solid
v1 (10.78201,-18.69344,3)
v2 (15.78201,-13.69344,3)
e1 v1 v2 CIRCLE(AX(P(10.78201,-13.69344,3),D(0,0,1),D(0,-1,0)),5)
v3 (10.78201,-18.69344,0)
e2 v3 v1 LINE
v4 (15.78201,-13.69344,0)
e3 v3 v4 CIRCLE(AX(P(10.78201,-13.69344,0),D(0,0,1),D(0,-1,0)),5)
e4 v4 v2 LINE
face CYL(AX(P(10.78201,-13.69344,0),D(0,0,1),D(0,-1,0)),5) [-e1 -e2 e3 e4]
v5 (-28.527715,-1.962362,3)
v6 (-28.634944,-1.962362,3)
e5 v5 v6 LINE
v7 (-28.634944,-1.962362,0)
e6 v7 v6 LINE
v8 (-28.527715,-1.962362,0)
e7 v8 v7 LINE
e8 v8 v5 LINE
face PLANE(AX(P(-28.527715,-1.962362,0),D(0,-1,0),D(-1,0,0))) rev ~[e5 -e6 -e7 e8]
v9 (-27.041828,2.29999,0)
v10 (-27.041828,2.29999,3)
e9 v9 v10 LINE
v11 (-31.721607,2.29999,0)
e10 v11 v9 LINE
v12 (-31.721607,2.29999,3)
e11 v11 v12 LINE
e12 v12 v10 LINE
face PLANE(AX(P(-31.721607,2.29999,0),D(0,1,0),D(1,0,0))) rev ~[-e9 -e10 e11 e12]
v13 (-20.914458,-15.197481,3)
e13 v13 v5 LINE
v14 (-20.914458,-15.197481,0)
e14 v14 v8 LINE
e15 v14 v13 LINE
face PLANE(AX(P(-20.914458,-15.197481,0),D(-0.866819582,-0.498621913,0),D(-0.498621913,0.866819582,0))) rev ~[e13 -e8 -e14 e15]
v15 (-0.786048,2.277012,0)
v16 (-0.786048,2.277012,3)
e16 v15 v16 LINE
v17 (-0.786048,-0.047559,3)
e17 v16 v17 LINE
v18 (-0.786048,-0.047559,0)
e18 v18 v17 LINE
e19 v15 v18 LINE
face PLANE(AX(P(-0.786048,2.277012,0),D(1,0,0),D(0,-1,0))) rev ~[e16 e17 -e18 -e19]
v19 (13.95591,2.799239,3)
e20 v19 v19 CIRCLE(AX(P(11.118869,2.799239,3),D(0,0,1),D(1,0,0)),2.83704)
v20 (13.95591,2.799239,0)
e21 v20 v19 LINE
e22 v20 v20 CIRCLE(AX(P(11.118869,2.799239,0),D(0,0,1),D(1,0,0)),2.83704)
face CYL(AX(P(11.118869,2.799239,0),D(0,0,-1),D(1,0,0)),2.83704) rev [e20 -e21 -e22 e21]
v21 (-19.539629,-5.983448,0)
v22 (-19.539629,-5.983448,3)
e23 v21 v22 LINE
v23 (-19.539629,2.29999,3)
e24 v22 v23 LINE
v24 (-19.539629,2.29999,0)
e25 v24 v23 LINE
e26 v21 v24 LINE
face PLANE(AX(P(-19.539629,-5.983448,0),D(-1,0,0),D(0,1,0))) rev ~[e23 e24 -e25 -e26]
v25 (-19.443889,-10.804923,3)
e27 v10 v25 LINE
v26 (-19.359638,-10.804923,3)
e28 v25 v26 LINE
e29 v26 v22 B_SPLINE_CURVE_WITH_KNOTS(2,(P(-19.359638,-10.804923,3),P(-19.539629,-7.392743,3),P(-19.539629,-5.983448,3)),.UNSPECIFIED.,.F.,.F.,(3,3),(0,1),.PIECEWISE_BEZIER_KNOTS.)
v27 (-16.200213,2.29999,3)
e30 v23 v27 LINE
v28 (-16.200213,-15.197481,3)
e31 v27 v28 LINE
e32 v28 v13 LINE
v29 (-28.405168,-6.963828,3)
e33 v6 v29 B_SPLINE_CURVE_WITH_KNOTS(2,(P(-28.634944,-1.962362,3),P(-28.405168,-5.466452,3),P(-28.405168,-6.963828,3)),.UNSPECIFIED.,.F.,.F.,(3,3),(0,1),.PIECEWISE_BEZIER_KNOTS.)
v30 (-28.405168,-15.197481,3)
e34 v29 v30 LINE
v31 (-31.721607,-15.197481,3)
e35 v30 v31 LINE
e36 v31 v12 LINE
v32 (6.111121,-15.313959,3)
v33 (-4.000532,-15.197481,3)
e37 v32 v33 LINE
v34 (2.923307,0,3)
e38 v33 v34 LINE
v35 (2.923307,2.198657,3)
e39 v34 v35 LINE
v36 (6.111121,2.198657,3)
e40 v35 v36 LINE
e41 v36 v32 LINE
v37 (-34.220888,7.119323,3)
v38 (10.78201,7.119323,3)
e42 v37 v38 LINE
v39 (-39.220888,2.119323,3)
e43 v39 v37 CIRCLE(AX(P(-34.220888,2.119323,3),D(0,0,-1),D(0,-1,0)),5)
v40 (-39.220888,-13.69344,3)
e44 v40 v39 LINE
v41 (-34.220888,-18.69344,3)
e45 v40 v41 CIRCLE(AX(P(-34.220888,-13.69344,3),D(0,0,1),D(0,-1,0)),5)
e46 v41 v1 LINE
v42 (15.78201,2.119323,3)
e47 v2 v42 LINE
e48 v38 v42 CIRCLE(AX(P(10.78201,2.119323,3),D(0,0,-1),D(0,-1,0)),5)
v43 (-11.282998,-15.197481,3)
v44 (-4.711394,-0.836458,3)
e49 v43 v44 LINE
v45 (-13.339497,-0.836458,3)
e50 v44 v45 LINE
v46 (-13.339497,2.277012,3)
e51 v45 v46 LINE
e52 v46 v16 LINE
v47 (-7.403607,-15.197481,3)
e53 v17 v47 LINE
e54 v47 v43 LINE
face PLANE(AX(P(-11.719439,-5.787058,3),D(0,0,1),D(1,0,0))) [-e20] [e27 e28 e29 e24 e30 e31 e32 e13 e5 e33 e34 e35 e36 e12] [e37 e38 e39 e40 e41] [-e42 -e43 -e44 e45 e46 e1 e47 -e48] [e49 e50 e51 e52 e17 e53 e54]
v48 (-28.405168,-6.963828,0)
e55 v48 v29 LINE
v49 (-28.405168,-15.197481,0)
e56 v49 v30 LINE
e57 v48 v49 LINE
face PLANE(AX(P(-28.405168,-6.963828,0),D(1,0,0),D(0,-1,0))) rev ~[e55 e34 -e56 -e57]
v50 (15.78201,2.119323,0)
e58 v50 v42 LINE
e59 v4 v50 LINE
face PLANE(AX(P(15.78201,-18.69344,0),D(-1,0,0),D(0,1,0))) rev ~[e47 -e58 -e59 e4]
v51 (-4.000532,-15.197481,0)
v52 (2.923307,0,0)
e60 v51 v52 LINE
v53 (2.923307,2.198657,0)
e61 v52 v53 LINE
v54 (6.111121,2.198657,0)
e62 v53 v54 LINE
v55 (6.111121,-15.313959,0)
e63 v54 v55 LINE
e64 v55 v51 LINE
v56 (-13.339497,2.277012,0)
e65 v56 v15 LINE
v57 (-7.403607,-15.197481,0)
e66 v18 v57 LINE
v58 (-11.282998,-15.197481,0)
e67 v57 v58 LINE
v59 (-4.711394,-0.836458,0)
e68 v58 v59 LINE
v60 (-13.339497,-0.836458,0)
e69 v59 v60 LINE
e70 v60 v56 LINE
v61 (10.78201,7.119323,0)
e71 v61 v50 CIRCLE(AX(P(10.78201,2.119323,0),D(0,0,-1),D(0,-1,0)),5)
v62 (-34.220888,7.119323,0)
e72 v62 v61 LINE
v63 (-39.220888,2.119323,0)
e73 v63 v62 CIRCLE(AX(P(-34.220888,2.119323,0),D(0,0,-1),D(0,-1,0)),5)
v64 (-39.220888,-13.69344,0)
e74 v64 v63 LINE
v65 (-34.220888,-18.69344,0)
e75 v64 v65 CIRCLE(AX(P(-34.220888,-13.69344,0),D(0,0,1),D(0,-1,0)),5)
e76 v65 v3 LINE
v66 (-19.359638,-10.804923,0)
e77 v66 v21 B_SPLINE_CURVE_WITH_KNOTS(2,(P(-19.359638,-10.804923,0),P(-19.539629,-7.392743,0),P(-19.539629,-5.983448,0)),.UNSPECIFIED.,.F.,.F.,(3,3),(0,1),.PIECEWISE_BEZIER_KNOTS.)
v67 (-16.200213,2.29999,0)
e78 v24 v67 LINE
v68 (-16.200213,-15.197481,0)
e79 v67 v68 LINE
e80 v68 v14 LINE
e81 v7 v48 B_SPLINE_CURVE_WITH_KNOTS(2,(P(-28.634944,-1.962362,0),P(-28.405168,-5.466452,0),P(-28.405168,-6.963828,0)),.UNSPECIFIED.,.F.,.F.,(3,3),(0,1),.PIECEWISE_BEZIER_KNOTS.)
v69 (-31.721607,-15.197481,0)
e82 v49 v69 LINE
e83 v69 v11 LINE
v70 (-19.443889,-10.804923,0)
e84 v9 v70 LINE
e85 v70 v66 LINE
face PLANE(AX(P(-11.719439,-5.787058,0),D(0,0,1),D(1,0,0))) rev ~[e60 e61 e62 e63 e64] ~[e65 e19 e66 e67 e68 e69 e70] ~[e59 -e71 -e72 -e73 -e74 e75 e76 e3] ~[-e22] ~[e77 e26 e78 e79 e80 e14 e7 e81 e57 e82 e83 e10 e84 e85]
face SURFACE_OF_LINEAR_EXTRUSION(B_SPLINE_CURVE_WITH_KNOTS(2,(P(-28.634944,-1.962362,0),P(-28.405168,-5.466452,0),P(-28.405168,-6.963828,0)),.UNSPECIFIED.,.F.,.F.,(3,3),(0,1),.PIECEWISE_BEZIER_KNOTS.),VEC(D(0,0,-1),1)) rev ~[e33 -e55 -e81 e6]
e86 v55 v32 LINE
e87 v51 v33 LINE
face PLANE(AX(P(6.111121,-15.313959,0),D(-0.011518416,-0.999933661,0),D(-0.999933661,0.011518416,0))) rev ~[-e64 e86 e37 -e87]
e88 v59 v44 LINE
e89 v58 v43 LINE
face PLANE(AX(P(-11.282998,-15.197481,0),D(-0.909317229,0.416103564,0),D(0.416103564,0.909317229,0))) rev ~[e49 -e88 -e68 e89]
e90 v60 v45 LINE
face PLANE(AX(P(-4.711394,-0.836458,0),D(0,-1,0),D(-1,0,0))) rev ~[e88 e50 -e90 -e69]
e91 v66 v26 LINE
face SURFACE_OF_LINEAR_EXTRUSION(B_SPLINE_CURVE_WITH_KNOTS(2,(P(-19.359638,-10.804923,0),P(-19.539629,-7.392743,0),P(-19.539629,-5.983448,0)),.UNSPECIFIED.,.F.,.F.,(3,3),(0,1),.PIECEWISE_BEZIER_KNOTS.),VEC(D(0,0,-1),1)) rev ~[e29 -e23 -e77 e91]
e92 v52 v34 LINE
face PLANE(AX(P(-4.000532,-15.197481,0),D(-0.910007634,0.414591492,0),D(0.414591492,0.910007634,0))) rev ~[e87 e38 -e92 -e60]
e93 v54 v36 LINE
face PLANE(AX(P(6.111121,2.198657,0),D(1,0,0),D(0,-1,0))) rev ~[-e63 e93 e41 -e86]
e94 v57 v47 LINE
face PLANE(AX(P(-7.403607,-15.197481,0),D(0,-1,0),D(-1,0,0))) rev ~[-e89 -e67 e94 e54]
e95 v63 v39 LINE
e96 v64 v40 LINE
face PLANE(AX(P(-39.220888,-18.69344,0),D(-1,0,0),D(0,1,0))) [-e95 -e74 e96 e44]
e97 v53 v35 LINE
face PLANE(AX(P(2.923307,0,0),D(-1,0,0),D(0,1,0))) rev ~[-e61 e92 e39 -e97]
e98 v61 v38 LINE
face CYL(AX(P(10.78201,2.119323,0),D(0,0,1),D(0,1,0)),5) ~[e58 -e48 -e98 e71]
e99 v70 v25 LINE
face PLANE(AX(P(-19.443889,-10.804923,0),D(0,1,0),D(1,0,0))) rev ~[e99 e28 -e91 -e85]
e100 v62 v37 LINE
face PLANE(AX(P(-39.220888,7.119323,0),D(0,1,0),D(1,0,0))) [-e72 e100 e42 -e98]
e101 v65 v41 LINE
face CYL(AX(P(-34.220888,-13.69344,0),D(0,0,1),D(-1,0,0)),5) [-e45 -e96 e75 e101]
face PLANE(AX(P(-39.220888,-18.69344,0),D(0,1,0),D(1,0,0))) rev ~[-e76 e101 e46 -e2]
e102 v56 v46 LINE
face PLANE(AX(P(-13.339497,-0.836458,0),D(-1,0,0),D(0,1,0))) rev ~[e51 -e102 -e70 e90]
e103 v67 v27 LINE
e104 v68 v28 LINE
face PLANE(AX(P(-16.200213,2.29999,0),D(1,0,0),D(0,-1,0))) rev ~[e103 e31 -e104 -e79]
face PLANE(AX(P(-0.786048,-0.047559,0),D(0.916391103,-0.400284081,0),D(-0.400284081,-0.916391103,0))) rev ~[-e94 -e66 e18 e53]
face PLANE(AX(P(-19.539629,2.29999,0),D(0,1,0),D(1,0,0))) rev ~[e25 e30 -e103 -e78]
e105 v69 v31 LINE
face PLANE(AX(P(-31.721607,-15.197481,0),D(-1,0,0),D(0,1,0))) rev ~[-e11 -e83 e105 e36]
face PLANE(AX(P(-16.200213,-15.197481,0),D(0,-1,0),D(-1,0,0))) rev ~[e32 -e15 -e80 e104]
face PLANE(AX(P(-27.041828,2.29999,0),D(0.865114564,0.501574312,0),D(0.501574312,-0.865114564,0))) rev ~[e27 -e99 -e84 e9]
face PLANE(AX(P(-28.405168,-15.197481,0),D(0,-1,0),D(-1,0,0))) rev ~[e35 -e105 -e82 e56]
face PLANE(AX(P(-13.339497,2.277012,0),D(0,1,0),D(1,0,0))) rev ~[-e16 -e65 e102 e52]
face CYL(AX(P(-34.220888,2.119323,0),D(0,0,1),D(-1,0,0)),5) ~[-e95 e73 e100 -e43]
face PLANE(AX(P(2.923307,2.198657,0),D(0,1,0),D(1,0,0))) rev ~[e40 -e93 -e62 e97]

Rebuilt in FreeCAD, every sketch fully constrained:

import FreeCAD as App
import Part
import Sketcher


def edges_at(feature, points):
    """Names of the edges that pass closest to the given points."""
    edges = feature.Shape.Edges
    near = lambda p: min(range(len(edges)), key=lambda i: edges[i].distToShape(Part.Vertex(*p))[0])
    return sorted({f"Edge{near(p) + 1}" for p in points})

doc = App.newDocument("Part")
body = doc.addObject("PartDesign::Body", "Body")

sketch1 = body.newObject("Sketcher::SketchObject", "Sketch")
sketch1.AttachmentSupport = (doc.getObject("XY_Plane"), [""])
sketch1.MapMode = "FlatFace"
sketch1.addGeometry(Part.LineSegment(App.Vector(-39.220888, 7.119323, 0), App.Vector(-39.220888, -18.69344, 0)), False)
sketch1.addGeometry(Part.LineSegment(App.Vector(-39.220888, -18.69344, 0), App.Vector(15.78201, -18.69344, 0)), False)
sketch1.addGeometry(Part.LineSegment(App.Vector(15.78201, -18.69344, 0), App.Vector(15.78201, 7.119323, 0)), False)
sketch1.addGeometry(Part.LineSegment(App.Vector(15.78201, 7.119323, 0), App.Vector(-39.220888, 7.119323, 0)), False)
sketch1.addGeometry(Part.LineSegment(App.Vector(-19.539629, 2.29999, 0), App.Vector(-16.200213, 2.29999, 0)), False)
sketch1.addGeometry(Part.LineSegment(App.Vector(-16.200213, 2.29999, 0), App.Vector(-16.200213, -15.197481, 0)), False)
sketch1.addGeometry(Part.LineSegment(App.Vector(-16.200213, -15.197481, 0), App.Vector(-20.914458, -15.197481, 0)), False)
sketch1.addGeometry(Part.LineSegment(App.Vector(-20.914458, -15.197481, 0), App.Vector(-28.527715, -1.962362, 0)), False)
sketch1.addGeometry(Part.LineSegment(App.Vector(-28.527715, -1.962362, 0), App.Vector(-28.634944, -1.962362, 0)), False)
sketch1.addGeometry(Part.BSplineCurve([App.Vector(-28.634944, -1.962362, 0), App.Vector(-28.405168, -5.466452, 0), App.Vector(-28.405168, -6.963828, 0)], [3, 3], [0, 1], False, 2, [1, 1, 1], False), False)
sketch1.addGeometry(Part.LineSegment(App.Vector(-28.405168, -6.963828, 0), App.Vector(-28.405168, -15.197481, 0)), False)
sketch1.addGeometry(Part.LineSegment(App.Vector(-28.405168, -15.197481, 0), App.Vector(-31.721607, -15.197481, 0)), False)
sketch1.addGeometry(Part.LineSegment(App.Vector(-31.721607, -15.197481, 0), App.Vector(-31.721607, 2.29999, 0)), False)
sketch1.addGeometry(Part.LineSegment(App.Vector(-31.721607, 2.29999, 0), App.Vector(-27.041828, 2.29999, 0)), False)
sketch1.addGeometry(Part.LineSegment(App.Vector(-27.041828, 2.29999, 0), App.Vector(-19.443889, -10.804923, 0)), False)
sketch1.addGeometry(Part.LineSegment(App.Vector(-19.443889, -10.804923, 0), App.Vector(-19.359638, -10.804923, 0)), False)
sketch1.addGeometry(Part.BSplineCurve([App.Vector(-19.359638, -10.804923, 0), App.Vector(-19.539629, -7.392743, 0), App.Vector(-19.539629, -5.983448, 0)], [3, 3], [0, 1], False, 2, [1, 1, 1], False), False)
sketch1.addGeometry(Part.LineSegment(App.Vector(-19.539629, -5.983448, 0), App.Vector(-19.539629, 2.29999, 0)), False)
sketch1.addGeometry(Part.LineSegment(App.Vector(-0.786048, -0.047559, 0), App.Vector(-7.403607, -15.197481, 0)), False)
sketch1.addGeometry(Part.LineSegment(App.Vector(-7.403607, -15.197481, 0), App.Vector(-11.282998, -15.197481, 0)), False)
sketch1.addGeometry(Part.LineSegment(App.Vector(-11.282998, -15.197481, 0), App.Vector(-4.711394, -0.836458, 0)), False)
sketch1.addGeometry(Part.LineSegment(App.Vector(-4.711394, -0.836458, 0), App.Vector(-13.339497, -0.836458, 0)), False)
sketch1.addGeometry(Part.LineSegment(App.Vector(-13.339497, -0.836458, 0), App.Vector(-13.339497, 2.277012, 0)), False)
sketch1.addGeometry(Part.LineSegment(App.Vector(-13.339497, 2.277012, 0), App.Vector(-0.786048, 2.277012, 0)), False)
sketch1.addGeometry(Part.LineSegment(App.Vector(-0.786048, 2.277012, 0), App.Vector(-0.786048, -0.047559, 0)), False)
sketch1.addGeometry(Part.LineSegment(App.Vector(6.111121, 2.198657, 0), App.Vector(6.111121, -15.313959, 0)), False)
sketch1.addGeometry(Part.LineSegment(App.Vector(6.111121, -15.313959, 0), App.Vector(-4.000532, -15.197481, 0)), False)
sketch1.addGeometry(Part.LineSegment(App.Vector(-4.000532, -15.197481, 0), App.Vector(2.923307, 0, 0)), False)
sketch1.addGeometry(Part.LineSegment(App.Vector(2.923307, 0, 0), App.Vector(2.923307, 2.198657, 0)), False)
sketch1.addGeometry(Part.LineSegment(App.Vector(2.923307, 2.198657, 0), App.Vector(6.111121, 2.198657, 0)), False)
sketch1.addGeometry(Part.Circle(App.Vector(11.118869, 2.799239, 0), App.Vector(0, 0, 1), 2.83704), False)
sketch1.addConstraint(Sketcher.Constraint("Block", 9))
sketch1.addConstraint(Sketcher.Constraint("Block", 16))
sketch1.addConstraint(Sketcher.Constraint("Coincident", 0, 2, 1, 1))
sketch1.addConstraint(Sketcher.Constraint("Coincident", 1, 2, 2, 1))
sketch1.addConstraint(Sketcher.Constraint("Coincident", 2, 2, 3, 1))
sketch1.addConstraint(Sketcher.Constraint("Coincident", 3, 2, 0, 1))
sketch1.addConstraint(Sketcher.Constraint("Coincident", 4, 2, 5, 1))
sketch1.addConstraint(Sketcher.Constraint("Coincident", 5, 2, 6, 1))
sketch1.addConstraint(Sketcher.Constraint("Coincident", 6, 2, 7, 1))
sketch1.addConstraint(Sketcher.Constraint("Coincident", 7, 2, 8, 1))
sketch1.addConstraint(Sketcher.Constraint("Coincident", 8, 2, 9, 1))
sketch1.addConstraint(Sketcher.Constraint("Coincident", 9, 2, 10, 1))
sketch1.addConstraint(Sketcher.Constraint("Coincident", 10, 2, 11, 1))
sketch1.addConstraint(Sketcher.Constraint("Coincident", 11, 2, 12, 1))
sketch1.addConstraint(Sketcher.Constraint("Coincident", 12, 2, 13, 1))
sketch1.addConstraint(Sketcher.Constraint("Coincident", 13, 2, 14, 1))
sketch1.addConstraint(Sketcher.Constraint("Coincident", 14, 2, 15, 1))
sketch1.addConstraint(Sketcher.Constraint("Coincident", 15, 2, 16, 1))
sketch1.addConstraint(Sketcher.Constraint("Coincident", 16, 2, 17, 1))
sketch1.addConstraint(Sketcher.Constraint("Coincident", 17, 2, 4, 1))
sketch1.addConstraint(Sketcher.Constraint("Coincident", 18, 2, 19, 1))
sketch1.addConstraint(Sketcher.Constraint("Coincident", 19, 2, 20, 1))
sketch1.addConstraint(Sketcher.Constraint("Coincident", 20, 2, 21, 1))
sketch1.addConstraint(Sketcher.Constraint("Coincident", 21, 2, 22, 1))
sketch1.addConstraint(Sketcher.Constraint("Coincident", 22, 2, 23, 1))
sketch1.addConstraint(Sketcher.Constraint("Coincident", 23, 2, 24, 1))
sketch1.addConstraint(Sketcher.Constraint("Coincident", 24, 2, 18, 1))
sketch1.addConstraint(Sketcher.Constraint("Coincident", 25, 2, 26, 1))
sketch1.addConstraint(Sketcher.Constraint("Coincident", 26, 2, 27, 1))
sketch1.addConstraint(Sketcher.Constraint("Coincident", 27, 2, 28, 1))
sketch1.addConstraint(Sketcher.Constraint("Coincident", 28, 2, 29, 1))
sketch1.addConstraint(Sketcher.Constraint("Coincident", 29, 2, 25, 1))
sketch1.addConstraint(Sketcher.Constraint("Vertical", 0))
sketch1.addConstraint(Sketcher.Constraint("Horizontal", 1))
sketch1.addConstraint(Sketcher.Constraint("Vertical", 2))
sketch1.addConstraint(Sketcher.Constraint("Horizontal", 3))
sketch1.addConstraint(Sketcher.Constraint("Horizontal", 4))
sketch1.addConstraint(Sketcher.Constraint("Vertical", 5))
sketch1.addConstraint(Sketcher.Constraint("Horizontal", 6))
sketch1.addConstraint(Sketcher.Constraint("Horizontal", 8))
sketch1.addConstraint(Sketcher.Constraint("Vertical", 10))
sketch1.addConstraint(Sketcher.Constraint("Horizontal", 11))
sketch1.addConstraint(Sketcher.Constraint("Vertical", 12))
sketch1.addConstraint(Sketcher.Constraint("Horizontal", 13))
sketch1.addConstraint(Sketcher.Constraint("Horizontal", 15))
sketch1.addConstraint(Sketcher.Constraint("Vertical", 17))
sketch1.addConstraint(Sketcher.Constraint("Horizontal", 19))
sketch1.addConstraint(Sketcher.Constraint("Horizontal", 21))
sketch1.addConstraint(Sketcher.Constraint("Vertical", 22))
sketch1.addConstraint(Sketcher.Constraint("Horizontal", 23))
sketch1.addConstraint(Sketcher.Constraint("Vertical", 24))
sketch1.addConstraint(Sketcher.Constraint("Vertical", 25))
sketch1.addConstraint(Sketcher.Constraint("Vertical", 28))
sketch1.addConstraint(Sketcher.Constraint("Horizontal", 29))
sketch1.addConstraint(Sketcher.Constraint("PointOnObject", 27, 2, -1))
sketch1.addConstraint(Sketcher.Constraint("Horizontal", 6, 2, 10, 2))
sketch1.addConstraint(Sketcher.Constraint("Horizontal", 4, 2, 12, 2))
sketch1.addConstraint(Sketcher.Constraint("Horizontal", 11, 2, 18, 2))
sketch1.addConstraint(Sketcher.Constraint("Horizontal", 19, 2, 26, 2))
sketch1.addConstraint(Sketcher.Constraint("Diameter", 30, 5.674081))
sketch1.addConstraint(Sketcher.Constraint("DistanceX", 19, 2, -1, 1, 11.282998))
sketch1.addConstraint(Sketcher.Constraint("DistanceX", 8, 2, 8, 1, 0.107229))
sketch1.addConstraint(Sketcher.Constraint("DistanceX", 11, 2, 11, 1, 3.316439))
sketch1.addConstraint(Sketcher.Constraint("DistanceX", 13, 1, 13, 2, 4.679779))
sketch1.addConstraint(Sketcher.Constraint("DistanceX", 15, 1, 15, 2, 0.084251))
sketch1.addConstraint(Sketcher.Constraint("DistanceX", 19, 2, 19, 1, 3.879391))
sketch1.addConstraint(Sketcher.Constraint("DistanceX", 23, 1, 23, 2, 12.553449))
sketch1.addConstraint(Sketcher.Constraint("DistanceY", 5, 2, 5, 1, 17.497471))
sketch1.addConstraint(Sketcher.Constraint("DistanceY", 17, 1, 17, 2, 8.283438))
sketch1.addConstraint(Sketcher.Constraint("DistanceY", 22, 1, 22, 2, 3.11347))
sketch1.addConstraint(Sketcher.Constraint("DistanceY", 24, 2, 24, 1, 2.324571))
sketch1.addConstraint(Sketcher.Constraint("DistanceY", 25, 2, 24, 2, 15.2664))
sketch1.addConstraint(Sketcher.Constraint("DistanceX", 20, 2, 27, 2, 7.634701))
sketch1.addConstraint(Sketcher.Constraint("Distance", 27, 16.700388))
sketch1.addConstraint(Sketcher.Constraint("DistanceX", 1, 1, 1, 2, 55.002898))
sketch1.addConstraint(Sketcher.Constraint("DistanceX", 4, 1, 4, 2, 3.339417))
sketch1.addConstraint(Sketcher.Constraint("DistanceX", 6, 2, 6, 1, 4.714245))
sketch1.addConstraint(Sketcher.Constraint("DistanceX", 21, 2, 21, 1, 8.628103))
sketch1.addConstraint(Sketcher.Constraint("DistanceX", 29, 1, 29, 2, 3.187814))
sketch1.addConstraint(Sketcher.Constraint("DistanceY", 0, 2, 0, 1, 25.812763))
sketch1.addConstraint(Sketcher.Constraint("DistanceY", 25, 2, 25, 1, 17.512616))
sketch1.addConstraint(Sketcher.Constraint("DistanceY", 28, 1, 28, 2, 2.198657))
sketch1.addConstraint(Sketcher.Constraint("DistanceX", -1, 1, 30, 3, 11.118869))
sketch1.addConstraint(Sketcher.Constraint("DistanceY", -1, 1, 30, 3, 2.799239))
sketch1.addConstraint(Sketcher.Constraint("DistanceX", 0, 2, -1, 1, 39.220888))
sketch1.addConstraint(Sketcher.Constraint("DistanceY", 0, 2, -1, 1, 18.69344))
sketch1.addConstraint(Sketcher.Constraint("DistanceX", -1, 1, 25, 2, 6.111121))
pad1 = body.newObject("PartDesign::Pad", "Pad")
pad1.Profile = sketch1
pad1.Length = 3
doc.recompute()

fillet = body.newObject("PartDesign::Fillet", "Fillet")
fillet.Base = (pad1, edges_at(pad1, [
    (-39.221, 7.119, 1.5),
    (-39.221, -18.693, 1.5),
    (15.782, 7.119, 1.5),
    (15.782, -18.693, 1.5),
]))
fillet.Radius = 5

doc.recompute()
